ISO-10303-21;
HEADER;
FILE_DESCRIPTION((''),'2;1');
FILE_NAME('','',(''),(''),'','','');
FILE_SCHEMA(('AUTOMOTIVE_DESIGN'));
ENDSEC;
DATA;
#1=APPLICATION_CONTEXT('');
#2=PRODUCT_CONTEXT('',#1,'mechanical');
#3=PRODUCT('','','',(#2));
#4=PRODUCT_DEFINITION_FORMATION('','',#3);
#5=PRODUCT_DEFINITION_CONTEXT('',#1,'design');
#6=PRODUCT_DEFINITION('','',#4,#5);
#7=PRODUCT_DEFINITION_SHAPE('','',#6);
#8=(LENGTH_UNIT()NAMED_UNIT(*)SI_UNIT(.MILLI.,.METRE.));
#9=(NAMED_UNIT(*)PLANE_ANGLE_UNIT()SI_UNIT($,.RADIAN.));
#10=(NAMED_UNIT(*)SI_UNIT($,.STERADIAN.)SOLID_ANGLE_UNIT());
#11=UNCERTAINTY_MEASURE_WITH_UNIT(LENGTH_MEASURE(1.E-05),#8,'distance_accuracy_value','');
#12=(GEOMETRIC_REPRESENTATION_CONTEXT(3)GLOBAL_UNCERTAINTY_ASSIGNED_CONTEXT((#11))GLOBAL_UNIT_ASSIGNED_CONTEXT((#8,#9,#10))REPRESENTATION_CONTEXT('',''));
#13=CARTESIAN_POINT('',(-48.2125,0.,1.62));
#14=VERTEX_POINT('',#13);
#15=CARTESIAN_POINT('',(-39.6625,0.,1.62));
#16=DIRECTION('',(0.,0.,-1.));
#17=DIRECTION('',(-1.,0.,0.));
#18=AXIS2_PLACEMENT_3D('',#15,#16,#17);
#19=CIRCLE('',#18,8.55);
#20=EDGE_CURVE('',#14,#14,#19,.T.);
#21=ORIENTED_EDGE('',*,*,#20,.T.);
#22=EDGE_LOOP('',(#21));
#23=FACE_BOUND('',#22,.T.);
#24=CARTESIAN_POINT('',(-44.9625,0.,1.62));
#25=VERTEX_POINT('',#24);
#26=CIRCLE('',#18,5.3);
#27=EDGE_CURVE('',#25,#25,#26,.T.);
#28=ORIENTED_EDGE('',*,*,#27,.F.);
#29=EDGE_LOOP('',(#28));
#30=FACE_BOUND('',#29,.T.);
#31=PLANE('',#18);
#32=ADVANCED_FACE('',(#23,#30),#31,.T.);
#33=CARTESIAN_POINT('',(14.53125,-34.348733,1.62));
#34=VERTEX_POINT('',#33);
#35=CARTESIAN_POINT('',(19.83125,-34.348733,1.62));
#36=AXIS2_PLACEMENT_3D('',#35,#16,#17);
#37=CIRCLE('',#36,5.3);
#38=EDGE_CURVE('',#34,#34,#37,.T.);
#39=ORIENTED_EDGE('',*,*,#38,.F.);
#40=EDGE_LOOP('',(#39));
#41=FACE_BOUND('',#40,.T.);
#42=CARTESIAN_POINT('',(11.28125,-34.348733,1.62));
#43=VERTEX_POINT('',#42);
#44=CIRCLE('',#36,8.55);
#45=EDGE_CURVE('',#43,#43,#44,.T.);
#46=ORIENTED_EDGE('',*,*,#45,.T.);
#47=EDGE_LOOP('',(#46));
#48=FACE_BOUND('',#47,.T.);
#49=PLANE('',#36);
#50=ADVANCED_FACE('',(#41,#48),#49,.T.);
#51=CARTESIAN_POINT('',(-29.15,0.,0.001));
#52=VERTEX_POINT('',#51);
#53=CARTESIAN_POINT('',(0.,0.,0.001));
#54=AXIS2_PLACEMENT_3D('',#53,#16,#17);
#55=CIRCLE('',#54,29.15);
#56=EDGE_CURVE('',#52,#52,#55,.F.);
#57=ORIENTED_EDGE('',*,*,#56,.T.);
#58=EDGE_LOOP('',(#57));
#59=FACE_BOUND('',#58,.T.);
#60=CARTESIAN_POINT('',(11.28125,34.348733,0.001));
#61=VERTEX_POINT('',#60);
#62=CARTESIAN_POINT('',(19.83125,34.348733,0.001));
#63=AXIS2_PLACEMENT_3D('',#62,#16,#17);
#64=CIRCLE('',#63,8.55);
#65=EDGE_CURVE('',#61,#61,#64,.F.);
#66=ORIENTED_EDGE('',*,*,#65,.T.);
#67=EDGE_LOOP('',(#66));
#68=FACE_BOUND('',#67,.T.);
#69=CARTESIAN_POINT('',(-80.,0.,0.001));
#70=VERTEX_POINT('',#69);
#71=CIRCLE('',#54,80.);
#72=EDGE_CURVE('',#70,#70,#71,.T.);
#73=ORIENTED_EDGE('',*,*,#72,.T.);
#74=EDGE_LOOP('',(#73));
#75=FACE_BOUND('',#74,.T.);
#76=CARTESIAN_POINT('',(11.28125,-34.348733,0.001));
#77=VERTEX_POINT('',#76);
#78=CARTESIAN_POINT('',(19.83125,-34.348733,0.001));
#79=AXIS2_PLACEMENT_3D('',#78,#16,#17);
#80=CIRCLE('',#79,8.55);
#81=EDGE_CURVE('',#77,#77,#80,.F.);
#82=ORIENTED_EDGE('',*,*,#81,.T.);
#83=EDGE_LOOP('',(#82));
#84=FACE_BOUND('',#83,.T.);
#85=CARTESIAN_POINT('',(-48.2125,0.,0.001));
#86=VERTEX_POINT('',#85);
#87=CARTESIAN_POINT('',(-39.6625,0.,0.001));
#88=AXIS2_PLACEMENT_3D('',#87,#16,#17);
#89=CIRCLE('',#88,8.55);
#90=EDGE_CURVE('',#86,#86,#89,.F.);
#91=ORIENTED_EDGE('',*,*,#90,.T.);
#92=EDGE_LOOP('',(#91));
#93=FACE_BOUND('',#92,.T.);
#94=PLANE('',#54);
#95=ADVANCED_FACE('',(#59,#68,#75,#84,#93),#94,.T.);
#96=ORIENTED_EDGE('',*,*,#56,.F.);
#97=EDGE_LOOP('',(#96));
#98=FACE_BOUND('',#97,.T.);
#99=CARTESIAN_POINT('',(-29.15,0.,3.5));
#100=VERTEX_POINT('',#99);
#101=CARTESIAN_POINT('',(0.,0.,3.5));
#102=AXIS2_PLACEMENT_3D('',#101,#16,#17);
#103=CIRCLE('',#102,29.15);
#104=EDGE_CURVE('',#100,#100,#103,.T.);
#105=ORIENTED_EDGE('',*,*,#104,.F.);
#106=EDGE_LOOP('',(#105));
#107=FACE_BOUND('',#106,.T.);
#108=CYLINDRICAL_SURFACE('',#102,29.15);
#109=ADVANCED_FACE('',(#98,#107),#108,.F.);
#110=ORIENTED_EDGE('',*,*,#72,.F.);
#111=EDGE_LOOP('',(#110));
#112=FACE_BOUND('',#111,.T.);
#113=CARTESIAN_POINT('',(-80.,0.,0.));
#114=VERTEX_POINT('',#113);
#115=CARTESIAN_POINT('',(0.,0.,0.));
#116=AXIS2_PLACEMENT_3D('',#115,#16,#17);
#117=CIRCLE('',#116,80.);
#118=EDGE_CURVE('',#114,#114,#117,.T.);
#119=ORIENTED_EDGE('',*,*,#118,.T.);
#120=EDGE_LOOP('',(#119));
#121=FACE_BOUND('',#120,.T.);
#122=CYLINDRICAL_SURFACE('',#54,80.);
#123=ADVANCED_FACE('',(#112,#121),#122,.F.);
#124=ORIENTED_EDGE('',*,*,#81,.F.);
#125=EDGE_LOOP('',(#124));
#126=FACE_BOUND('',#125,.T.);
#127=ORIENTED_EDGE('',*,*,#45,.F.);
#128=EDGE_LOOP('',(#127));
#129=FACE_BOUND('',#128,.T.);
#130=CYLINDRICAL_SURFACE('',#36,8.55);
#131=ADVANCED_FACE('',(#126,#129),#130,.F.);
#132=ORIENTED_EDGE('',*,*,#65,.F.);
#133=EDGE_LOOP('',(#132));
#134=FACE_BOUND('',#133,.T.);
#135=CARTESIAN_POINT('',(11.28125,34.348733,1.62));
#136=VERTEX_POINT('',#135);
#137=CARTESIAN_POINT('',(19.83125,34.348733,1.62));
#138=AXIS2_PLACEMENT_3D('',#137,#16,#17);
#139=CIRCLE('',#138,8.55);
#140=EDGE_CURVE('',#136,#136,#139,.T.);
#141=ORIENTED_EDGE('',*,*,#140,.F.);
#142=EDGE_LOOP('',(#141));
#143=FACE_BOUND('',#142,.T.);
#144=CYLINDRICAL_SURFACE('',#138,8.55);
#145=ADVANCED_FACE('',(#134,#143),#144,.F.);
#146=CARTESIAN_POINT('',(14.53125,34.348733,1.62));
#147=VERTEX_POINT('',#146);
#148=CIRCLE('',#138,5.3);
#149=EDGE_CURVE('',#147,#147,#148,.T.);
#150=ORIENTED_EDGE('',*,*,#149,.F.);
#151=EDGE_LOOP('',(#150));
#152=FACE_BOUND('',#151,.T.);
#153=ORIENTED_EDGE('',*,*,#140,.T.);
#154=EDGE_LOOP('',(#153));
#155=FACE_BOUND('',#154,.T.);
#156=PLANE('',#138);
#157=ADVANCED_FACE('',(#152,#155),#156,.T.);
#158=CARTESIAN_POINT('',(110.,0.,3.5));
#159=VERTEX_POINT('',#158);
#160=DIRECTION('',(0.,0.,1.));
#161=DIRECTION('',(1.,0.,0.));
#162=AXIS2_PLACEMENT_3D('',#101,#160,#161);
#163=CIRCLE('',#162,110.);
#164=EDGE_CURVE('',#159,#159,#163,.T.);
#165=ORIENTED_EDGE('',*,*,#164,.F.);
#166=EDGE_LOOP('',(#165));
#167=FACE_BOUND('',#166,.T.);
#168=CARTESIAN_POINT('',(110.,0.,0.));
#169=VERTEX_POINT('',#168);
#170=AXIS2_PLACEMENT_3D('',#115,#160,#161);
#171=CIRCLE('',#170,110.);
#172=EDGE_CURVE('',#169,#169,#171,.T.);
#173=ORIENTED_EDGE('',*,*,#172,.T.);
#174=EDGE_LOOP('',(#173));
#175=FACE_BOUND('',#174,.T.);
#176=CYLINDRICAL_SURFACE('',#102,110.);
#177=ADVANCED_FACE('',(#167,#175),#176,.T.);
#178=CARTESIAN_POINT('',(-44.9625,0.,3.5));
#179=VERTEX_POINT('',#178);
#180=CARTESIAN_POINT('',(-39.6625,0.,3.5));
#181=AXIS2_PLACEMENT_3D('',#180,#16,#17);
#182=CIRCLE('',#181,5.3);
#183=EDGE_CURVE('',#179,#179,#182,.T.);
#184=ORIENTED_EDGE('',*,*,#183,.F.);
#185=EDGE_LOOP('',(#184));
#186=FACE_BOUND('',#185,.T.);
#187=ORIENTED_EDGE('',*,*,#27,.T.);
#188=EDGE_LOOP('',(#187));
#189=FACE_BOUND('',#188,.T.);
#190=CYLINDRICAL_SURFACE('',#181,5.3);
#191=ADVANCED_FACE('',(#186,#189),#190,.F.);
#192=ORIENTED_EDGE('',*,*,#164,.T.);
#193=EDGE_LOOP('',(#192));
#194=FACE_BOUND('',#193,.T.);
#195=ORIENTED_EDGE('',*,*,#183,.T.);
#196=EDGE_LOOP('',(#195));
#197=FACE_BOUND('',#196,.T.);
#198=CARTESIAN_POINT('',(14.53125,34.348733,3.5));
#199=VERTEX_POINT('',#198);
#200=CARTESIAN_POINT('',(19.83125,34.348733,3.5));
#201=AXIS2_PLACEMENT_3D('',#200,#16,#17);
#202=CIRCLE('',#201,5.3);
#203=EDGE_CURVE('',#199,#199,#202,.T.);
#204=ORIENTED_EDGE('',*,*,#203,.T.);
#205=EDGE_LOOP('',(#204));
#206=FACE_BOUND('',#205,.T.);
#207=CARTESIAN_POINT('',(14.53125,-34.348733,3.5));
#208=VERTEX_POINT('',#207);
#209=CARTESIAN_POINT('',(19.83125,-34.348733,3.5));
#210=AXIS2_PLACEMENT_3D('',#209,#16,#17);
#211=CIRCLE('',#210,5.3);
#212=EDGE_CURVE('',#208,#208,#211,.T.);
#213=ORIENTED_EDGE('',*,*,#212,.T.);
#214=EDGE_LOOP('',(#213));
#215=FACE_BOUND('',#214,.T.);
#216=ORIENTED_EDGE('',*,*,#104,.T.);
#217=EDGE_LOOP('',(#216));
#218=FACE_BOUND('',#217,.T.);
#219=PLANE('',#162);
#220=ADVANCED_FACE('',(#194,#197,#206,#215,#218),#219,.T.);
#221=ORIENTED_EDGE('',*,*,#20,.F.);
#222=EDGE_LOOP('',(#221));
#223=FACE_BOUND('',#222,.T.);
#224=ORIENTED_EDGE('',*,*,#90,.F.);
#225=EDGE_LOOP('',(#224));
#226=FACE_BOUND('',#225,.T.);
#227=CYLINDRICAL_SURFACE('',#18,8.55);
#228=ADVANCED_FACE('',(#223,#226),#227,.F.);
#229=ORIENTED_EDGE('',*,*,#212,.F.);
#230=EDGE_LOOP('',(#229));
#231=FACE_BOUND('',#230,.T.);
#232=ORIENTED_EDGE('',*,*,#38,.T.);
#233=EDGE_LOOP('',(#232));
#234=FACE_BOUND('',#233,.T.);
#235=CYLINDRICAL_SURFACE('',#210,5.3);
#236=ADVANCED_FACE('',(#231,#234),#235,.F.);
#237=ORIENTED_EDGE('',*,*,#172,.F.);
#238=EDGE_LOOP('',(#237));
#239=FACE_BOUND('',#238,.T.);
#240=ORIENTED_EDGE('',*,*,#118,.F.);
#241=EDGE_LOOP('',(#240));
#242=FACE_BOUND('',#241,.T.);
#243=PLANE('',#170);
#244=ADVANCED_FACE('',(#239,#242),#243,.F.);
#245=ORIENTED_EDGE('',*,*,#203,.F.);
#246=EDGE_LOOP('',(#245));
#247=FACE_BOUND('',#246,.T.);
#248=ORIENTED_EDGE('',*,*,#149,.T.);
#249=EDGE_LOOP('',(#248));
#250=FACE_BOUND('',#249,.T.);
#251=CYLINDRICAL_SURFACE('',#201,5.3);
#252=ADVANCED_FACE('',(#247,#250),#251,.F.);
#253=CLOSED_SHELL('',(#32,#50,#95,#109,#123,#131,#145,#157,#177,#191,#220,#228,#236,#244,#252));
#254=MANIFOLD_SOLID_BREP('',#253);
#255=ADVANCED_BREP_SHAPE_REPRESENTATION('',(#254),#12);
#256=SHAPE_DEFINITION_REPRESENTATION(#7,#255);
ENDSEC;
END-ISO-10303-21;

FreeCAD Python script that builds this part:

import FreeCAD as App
import Part
import Sketcher

doc = App.newDocument("Part")
body = doc.addObject("PartDesign::Body", "Body")

sketch1 = body.newObject("Sketcher::SketchObject", "Sketch")
sketch1.AttachmentSupport = (doc.getObject("XY_Plane"), [""])
sketch1.MapMode = "FlatFace"
sketch1.addGeometry(Part.Circle(App.Vector(0, 0, 0), App.Vector(0, 0, 1), 110), False)
sketch1.addConstraint([
    Sketcher.Constraint("Coincident", 0, 3, -1, 1),
    Sketcher.Constraint("Diameter", 0, 220.0),
])
pad1 = body.newObject("PartDesign::Pad", "Pad")
pad1.Profile = sketch1
pad1.Length = 3.5

sketch2 = body.newObject("Sketcher::SketchObject", "Sketch001")
sketch2.AttachmentSupport = (doc.getObject("XY_Plane"), [""])
sketch2.MapMode = "FlatFace"
sketch2.addGeometry(Part.Circle(App.Vector(0, 0, 0), App.Vector(0, 0, 1), 80), False)
sketch2.addConstraint([
    Sketcher.Constraint("Coincident", 0, 3, -1, 1),
    Sketcher.Constraint("Diameter", 0, 160.0),
])
pad2 = body.newObject("PartDesign::Pad", "Pad001")
pad2.Profile = sketch2
pad2.Length = 0.001

sketch3 = body.newObject("Sketcher::SketchObject", "Sketch002")
sketch3.AttachmentSupport = (doc.getObject("XY_Plane"), [""])
sketch3.MapMode = "FlatFace"
sketch3.addGeometry(Part.Circle(App.Vector(0, 0, 0), App.Vector(0, 0, 1), 29), False)
sketch3.addConstraint([
    Sketcher.Constraint("Coincident", 0, 3, -1, 1),
    Sketcher.Constraint("Diameter", 0, 58.3),
])
pocket1 = body.newObject("PartDesign::Pocket", "Pocket")
pocket1.Profile = sketch3
pocket1.Type = "ThroughAll"
pocket1.Reversed = True

sketch4 = body.newObject("Sketcher::SketchObject", "Sketch003")
sketch4.AttachmentSupport = (doc.getObject("XY_Plane"), [""])
sketch4.MapMode = "FlatFace"
sketch4.addGeometry([
    Part.Circle(App.Vector(-40, 0, 0), App.Vector(0, 0, 1), 9),
    Part.Circle(App.Vector(-40, 0, 0), App.Vector(0, 0, 1), 5),
    Part.Circle(App.Vector(20, -34, 0), App.Vector(0, 0, 1), 9),
    Part.Circle(App.Vector(20, -34, 0), App.Vector(0, 0, 1), 5),
    Part.Circle(App.Vector(20, 34, 0), App.Vector(0, 0, 1), 9),
    Part.Circle(App.Vector(20, 34, 0), App.Vector(0, 0, 1), 5),
], False)
sketch4.addConstraint([
    Sketcher.Constraint("Coincident", 1, 3, 0, 3),
    Sketcher.Constraint("Coincident", 3, 3, 2, 3),
    Sketcher.Constraint("Coincident", 5, 3, 4, 3),
    Sketcher.Constraint("Equal", 0, 2),
    Sketcher.Constraint("Equal", 1, 3),
    Sketcher.Constraint("Equal", 2, 4),
    Sketcher.Constraint("Equal", 3, 5),
    Sketcher.Constraint("Symmetric", 2, 3, 4, 3, -1),
    Sketcher.Constraint("PointOnObject", 0, 3, -1),
    Sketcher.Constraint("Diameter", 0, 17.1),
    Sketcher.Constraint("Diameter", 1, 10.6),
    Sketcher.Constraint("DistanceX", 0, 3, -1, 1, 39.6625),
    Sketcher.Constraint("DistanceX", -1, 1, 2, 3, 19.83125),
    Sketcher.Constraint("DistanceY", 2, 3, -1, 1, 34.348733),
])
pocket2 = body.newObject("PartDesign::Pocket", "Pocket001")
pocket2.Profile = sketch4
pocket2.Length = 1.62
pocket2.Reversed = True

sketch5 = body.newObject("Sketcher::SketchObject", "Sketch004")
sketch5.AttachmentSupport = (doc.getObject("XY_Plane"), [""])
sketch5.MapMode = "FlatFace"
sketch5.addGeometry([
    Part.Circle(App.Vector(20, -34, 0), App.Vector(0, 0, 1), 5),
    Part.Circle(App.Vector(-40, 0, 0), App.Vector(0, 0, 1), 5),
    Part.Circle(App.Vector(20, 34, 0), App.Vector(0, 0, 1), 5),
], False)
sketch5.addConstraint([
    Sketcher.Constraint("Equal", 0, 1),
    Sketcher.Constraint("Equal", 1, 2),
    Sketcher.Constraint("Symmetric", 0, 3, 2, 3, -1),
    Sketcher.Constraint("PointOnObject", 1, 3, -1),
    Sketcher.Constraint("Diameter", 0, 10.6),
    Sketcher.Constraint("DistanceX", 1, 3, -1, 1, 39.6625),
    Sketcher.Constraint("DistanceX", -1, 1, 0, 3, 19.83125),
    Sketcher.Constraint("DistanceY", 0, 3, -1, 1, 34.348733),
])
pocket3 = body.newObject("PartDesign::Pocket", "Pocket002")
pocket3.Profile = sketch5
pocket3.Type = "ThroughAll"
pocket3.Reversed = True

sketch6 = body.newObject("Sketcher::SketchObject", "Sketch005")
sketch6.AttachmentSupport = (doc.getObject("XY_Plane"), [""])
sketch6.MapMode = "FlatFace"
sketch6.addGeometry(Part.Circle(App.Vector(0, 0, 0), App.Vector(0, 0, 1), 80), False)
sketch6.addConstraint([
    Sketcher.Constraint("Coincident", 0, 3, -1, 1),
    Sketcher.Constraint("Diameter", 0, 160.0),
])
pocket4 = body.newObject("PartDesign::Pocket", "Pocket003")
pocket4.Profile = sketch6
pocket4.Length = 0.001
pocket4.Reversed = True

doc.recompute()
